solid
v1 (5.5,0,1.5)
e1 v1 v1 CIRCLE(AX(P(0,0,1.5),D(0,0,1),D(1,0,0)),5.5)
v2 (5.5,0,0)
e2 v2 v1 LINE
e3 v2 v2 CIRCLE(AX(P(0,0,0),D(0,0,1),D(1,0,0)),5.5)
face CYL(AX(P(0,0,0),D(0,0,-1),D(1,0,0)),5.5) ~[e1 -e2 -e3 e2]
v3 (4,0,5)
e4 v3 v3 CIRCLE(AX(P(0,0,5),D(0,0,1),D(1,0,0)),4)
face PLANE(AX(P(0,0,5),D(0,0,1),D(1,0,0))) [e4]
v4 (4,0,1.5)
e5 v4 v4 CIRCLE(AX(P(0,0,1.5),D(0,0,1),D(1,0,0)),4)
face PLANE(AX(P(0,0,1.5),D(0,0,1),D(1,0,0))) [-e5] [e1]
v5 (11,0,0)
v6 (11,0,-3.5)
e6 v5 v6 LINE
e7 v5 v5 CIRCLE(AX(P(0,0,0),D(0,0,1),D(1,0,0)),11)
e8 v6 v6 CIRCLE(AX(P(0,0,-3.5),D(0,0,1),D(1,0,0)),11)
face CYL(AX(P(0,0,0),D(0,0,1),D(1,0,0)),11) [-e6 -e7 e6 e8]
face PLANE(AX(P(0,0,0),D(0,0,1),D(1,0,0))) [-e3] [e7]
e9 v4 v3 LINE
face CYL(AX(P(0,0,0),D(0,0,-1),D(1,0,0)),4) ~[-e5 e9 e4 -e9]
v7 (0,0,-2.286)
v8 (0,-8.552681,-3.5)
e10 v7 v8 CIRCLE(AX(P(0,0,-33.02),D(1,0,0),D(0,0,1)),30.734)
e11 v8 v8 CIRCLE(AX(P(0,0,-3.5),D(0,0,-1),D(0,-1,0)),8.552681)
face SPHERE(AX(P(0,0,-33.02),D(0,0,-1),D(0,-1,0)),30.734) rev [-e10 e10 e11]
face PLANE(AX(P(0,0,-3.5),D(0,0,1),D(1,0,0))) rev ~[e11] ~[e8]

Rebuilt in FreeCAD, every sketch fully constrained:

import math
import FreeCAD as App
import Part
import Sketcher
Q = App.Units.Quantity

doc = App.newDocument("Part")
body = doc.addObject("PartDesign::Body", "Body")

# Sketch on XY plane
sketch1 = body.newObject("Sketcher::SketchObject", "Sketch")
sketch1.AttachmentSupport = (doc.getObject("XY_Plane"), [""])
sketch1.MapMode = "FlatFace"
sketch1.addGeometry(Part.Circle(App.Vector(0, 0, 0), App.Vector(0, 0, 1), 4), False)
sketch1.addConstraint([
    Sketcher.Constraint("Coincident", 0, 3, -1, 1),
    Sketcher.Constraint("Diameter", 0, Q("8 mm")),
])
pad1 = body.newObject("PartDesign::Pad", "Pad")
pad1.Profile = sketch1
pad1.Length = 5

# Sketch on XY plane
sketch2 = body.newObject("Sketcher::SketchObject", "Sketch001")
sketch2.AttachmentSupport = (doc.getObject("XY_Plane"), [""])
sketch2.MapMode = "FlatFace"
sketch2.addGeometry(Part.Circle(App.Vector(0, 0, 0), App.Vector(0, 0, 1), 11), False)
sketch2.addConstraint([
    Sketcher.Constraint("Coincident", 0, 3, -1, 1),
    Sketcher.Constraint("Diameter", 0, Q("22 mm")),
])
pad2 = body.newObject("PartDesign::Pad", "Pad001")
pad2.Profile = sketch2
pad2.Length = 3.5
pad2.Reversed = True

# Sketch on YZ plane
sketch3 = body.newObject("Sketcher::SketchObject", "Sketch002")
sketch3.AttachmentSupport = (doc.getObject("YZ_Plane"), [""])
sketch3.MapMode = "FlatFace"
sketch3.addGeometry([
    Part.ArcOfCircle(Part.Circle(App.Vector(0, -33, 0), App.Vector(0, 0, 1), 31), math.radians(90), math.radians(270)),
    Part.LineSegment(App.Vector(0, -64, 0), App.Vector(0, -2, 0)),
], False)
sketch3.addConstraint([
    Sketcher.Constraint("Coincident", 0, 1, 1, 2),
    Sketcher.Constraint("Coincident", 1, 1, 0, 2),
    Sketcher.Constraint("Vertical", 1),
    Sketcher.Constraint("PointOnObject", 0, 3, -2),
    Sketcher.Constraint("PointOnObject", 0, 1, -2),
    Sketcher.Constraint("Radius", 0, Q("30.734 mm")),
    Sketcher.Constraint("DistanceY", 0, 3, -1, 1, Q("33.02 mm")),
])
groove = body.newObject("PartDesign::Groove", "Groove")
groove.Profile = sketch3
groove.ReferenceAxis = (sketch3, ["V_Axis"])
groove.Angle = 360

# Sketch on XY plane
sketch4 = body.newObject("Sketcher::SketchObject", "Sketch003")
sketch4.AttachmentSupport = (doc.getObject("XY_Plane"), [""])
sketch4.MapMode = "FlatFace"
sketch4.addGeometry([
    Part.Circle(App.Vector(0, 0, 0), App.Vector(0, 0, 1), 5.5),
    Part.Circle(App.Vector(0, 0, 0), App.Vector(0, 0, 1), 4),
], False)
sketch4.addConstraint([
    Sketcher.Constraint("Coincident", 0, 3, -1, 1),
    Sketcher.Constraint("Coincident", 1, 3, -1, 1),
    Sketcher.Constraint("Diameter", 0, Q("11 mm")),
    Sketcher.Constraint("Diameter", 1, Q("8 mm")),
])
pad3 = body.newObject("PartDesign::Pad", "Pad002")
pad3.Profile = sketch4
pad3.Length = 1.5

doc.recompute()
